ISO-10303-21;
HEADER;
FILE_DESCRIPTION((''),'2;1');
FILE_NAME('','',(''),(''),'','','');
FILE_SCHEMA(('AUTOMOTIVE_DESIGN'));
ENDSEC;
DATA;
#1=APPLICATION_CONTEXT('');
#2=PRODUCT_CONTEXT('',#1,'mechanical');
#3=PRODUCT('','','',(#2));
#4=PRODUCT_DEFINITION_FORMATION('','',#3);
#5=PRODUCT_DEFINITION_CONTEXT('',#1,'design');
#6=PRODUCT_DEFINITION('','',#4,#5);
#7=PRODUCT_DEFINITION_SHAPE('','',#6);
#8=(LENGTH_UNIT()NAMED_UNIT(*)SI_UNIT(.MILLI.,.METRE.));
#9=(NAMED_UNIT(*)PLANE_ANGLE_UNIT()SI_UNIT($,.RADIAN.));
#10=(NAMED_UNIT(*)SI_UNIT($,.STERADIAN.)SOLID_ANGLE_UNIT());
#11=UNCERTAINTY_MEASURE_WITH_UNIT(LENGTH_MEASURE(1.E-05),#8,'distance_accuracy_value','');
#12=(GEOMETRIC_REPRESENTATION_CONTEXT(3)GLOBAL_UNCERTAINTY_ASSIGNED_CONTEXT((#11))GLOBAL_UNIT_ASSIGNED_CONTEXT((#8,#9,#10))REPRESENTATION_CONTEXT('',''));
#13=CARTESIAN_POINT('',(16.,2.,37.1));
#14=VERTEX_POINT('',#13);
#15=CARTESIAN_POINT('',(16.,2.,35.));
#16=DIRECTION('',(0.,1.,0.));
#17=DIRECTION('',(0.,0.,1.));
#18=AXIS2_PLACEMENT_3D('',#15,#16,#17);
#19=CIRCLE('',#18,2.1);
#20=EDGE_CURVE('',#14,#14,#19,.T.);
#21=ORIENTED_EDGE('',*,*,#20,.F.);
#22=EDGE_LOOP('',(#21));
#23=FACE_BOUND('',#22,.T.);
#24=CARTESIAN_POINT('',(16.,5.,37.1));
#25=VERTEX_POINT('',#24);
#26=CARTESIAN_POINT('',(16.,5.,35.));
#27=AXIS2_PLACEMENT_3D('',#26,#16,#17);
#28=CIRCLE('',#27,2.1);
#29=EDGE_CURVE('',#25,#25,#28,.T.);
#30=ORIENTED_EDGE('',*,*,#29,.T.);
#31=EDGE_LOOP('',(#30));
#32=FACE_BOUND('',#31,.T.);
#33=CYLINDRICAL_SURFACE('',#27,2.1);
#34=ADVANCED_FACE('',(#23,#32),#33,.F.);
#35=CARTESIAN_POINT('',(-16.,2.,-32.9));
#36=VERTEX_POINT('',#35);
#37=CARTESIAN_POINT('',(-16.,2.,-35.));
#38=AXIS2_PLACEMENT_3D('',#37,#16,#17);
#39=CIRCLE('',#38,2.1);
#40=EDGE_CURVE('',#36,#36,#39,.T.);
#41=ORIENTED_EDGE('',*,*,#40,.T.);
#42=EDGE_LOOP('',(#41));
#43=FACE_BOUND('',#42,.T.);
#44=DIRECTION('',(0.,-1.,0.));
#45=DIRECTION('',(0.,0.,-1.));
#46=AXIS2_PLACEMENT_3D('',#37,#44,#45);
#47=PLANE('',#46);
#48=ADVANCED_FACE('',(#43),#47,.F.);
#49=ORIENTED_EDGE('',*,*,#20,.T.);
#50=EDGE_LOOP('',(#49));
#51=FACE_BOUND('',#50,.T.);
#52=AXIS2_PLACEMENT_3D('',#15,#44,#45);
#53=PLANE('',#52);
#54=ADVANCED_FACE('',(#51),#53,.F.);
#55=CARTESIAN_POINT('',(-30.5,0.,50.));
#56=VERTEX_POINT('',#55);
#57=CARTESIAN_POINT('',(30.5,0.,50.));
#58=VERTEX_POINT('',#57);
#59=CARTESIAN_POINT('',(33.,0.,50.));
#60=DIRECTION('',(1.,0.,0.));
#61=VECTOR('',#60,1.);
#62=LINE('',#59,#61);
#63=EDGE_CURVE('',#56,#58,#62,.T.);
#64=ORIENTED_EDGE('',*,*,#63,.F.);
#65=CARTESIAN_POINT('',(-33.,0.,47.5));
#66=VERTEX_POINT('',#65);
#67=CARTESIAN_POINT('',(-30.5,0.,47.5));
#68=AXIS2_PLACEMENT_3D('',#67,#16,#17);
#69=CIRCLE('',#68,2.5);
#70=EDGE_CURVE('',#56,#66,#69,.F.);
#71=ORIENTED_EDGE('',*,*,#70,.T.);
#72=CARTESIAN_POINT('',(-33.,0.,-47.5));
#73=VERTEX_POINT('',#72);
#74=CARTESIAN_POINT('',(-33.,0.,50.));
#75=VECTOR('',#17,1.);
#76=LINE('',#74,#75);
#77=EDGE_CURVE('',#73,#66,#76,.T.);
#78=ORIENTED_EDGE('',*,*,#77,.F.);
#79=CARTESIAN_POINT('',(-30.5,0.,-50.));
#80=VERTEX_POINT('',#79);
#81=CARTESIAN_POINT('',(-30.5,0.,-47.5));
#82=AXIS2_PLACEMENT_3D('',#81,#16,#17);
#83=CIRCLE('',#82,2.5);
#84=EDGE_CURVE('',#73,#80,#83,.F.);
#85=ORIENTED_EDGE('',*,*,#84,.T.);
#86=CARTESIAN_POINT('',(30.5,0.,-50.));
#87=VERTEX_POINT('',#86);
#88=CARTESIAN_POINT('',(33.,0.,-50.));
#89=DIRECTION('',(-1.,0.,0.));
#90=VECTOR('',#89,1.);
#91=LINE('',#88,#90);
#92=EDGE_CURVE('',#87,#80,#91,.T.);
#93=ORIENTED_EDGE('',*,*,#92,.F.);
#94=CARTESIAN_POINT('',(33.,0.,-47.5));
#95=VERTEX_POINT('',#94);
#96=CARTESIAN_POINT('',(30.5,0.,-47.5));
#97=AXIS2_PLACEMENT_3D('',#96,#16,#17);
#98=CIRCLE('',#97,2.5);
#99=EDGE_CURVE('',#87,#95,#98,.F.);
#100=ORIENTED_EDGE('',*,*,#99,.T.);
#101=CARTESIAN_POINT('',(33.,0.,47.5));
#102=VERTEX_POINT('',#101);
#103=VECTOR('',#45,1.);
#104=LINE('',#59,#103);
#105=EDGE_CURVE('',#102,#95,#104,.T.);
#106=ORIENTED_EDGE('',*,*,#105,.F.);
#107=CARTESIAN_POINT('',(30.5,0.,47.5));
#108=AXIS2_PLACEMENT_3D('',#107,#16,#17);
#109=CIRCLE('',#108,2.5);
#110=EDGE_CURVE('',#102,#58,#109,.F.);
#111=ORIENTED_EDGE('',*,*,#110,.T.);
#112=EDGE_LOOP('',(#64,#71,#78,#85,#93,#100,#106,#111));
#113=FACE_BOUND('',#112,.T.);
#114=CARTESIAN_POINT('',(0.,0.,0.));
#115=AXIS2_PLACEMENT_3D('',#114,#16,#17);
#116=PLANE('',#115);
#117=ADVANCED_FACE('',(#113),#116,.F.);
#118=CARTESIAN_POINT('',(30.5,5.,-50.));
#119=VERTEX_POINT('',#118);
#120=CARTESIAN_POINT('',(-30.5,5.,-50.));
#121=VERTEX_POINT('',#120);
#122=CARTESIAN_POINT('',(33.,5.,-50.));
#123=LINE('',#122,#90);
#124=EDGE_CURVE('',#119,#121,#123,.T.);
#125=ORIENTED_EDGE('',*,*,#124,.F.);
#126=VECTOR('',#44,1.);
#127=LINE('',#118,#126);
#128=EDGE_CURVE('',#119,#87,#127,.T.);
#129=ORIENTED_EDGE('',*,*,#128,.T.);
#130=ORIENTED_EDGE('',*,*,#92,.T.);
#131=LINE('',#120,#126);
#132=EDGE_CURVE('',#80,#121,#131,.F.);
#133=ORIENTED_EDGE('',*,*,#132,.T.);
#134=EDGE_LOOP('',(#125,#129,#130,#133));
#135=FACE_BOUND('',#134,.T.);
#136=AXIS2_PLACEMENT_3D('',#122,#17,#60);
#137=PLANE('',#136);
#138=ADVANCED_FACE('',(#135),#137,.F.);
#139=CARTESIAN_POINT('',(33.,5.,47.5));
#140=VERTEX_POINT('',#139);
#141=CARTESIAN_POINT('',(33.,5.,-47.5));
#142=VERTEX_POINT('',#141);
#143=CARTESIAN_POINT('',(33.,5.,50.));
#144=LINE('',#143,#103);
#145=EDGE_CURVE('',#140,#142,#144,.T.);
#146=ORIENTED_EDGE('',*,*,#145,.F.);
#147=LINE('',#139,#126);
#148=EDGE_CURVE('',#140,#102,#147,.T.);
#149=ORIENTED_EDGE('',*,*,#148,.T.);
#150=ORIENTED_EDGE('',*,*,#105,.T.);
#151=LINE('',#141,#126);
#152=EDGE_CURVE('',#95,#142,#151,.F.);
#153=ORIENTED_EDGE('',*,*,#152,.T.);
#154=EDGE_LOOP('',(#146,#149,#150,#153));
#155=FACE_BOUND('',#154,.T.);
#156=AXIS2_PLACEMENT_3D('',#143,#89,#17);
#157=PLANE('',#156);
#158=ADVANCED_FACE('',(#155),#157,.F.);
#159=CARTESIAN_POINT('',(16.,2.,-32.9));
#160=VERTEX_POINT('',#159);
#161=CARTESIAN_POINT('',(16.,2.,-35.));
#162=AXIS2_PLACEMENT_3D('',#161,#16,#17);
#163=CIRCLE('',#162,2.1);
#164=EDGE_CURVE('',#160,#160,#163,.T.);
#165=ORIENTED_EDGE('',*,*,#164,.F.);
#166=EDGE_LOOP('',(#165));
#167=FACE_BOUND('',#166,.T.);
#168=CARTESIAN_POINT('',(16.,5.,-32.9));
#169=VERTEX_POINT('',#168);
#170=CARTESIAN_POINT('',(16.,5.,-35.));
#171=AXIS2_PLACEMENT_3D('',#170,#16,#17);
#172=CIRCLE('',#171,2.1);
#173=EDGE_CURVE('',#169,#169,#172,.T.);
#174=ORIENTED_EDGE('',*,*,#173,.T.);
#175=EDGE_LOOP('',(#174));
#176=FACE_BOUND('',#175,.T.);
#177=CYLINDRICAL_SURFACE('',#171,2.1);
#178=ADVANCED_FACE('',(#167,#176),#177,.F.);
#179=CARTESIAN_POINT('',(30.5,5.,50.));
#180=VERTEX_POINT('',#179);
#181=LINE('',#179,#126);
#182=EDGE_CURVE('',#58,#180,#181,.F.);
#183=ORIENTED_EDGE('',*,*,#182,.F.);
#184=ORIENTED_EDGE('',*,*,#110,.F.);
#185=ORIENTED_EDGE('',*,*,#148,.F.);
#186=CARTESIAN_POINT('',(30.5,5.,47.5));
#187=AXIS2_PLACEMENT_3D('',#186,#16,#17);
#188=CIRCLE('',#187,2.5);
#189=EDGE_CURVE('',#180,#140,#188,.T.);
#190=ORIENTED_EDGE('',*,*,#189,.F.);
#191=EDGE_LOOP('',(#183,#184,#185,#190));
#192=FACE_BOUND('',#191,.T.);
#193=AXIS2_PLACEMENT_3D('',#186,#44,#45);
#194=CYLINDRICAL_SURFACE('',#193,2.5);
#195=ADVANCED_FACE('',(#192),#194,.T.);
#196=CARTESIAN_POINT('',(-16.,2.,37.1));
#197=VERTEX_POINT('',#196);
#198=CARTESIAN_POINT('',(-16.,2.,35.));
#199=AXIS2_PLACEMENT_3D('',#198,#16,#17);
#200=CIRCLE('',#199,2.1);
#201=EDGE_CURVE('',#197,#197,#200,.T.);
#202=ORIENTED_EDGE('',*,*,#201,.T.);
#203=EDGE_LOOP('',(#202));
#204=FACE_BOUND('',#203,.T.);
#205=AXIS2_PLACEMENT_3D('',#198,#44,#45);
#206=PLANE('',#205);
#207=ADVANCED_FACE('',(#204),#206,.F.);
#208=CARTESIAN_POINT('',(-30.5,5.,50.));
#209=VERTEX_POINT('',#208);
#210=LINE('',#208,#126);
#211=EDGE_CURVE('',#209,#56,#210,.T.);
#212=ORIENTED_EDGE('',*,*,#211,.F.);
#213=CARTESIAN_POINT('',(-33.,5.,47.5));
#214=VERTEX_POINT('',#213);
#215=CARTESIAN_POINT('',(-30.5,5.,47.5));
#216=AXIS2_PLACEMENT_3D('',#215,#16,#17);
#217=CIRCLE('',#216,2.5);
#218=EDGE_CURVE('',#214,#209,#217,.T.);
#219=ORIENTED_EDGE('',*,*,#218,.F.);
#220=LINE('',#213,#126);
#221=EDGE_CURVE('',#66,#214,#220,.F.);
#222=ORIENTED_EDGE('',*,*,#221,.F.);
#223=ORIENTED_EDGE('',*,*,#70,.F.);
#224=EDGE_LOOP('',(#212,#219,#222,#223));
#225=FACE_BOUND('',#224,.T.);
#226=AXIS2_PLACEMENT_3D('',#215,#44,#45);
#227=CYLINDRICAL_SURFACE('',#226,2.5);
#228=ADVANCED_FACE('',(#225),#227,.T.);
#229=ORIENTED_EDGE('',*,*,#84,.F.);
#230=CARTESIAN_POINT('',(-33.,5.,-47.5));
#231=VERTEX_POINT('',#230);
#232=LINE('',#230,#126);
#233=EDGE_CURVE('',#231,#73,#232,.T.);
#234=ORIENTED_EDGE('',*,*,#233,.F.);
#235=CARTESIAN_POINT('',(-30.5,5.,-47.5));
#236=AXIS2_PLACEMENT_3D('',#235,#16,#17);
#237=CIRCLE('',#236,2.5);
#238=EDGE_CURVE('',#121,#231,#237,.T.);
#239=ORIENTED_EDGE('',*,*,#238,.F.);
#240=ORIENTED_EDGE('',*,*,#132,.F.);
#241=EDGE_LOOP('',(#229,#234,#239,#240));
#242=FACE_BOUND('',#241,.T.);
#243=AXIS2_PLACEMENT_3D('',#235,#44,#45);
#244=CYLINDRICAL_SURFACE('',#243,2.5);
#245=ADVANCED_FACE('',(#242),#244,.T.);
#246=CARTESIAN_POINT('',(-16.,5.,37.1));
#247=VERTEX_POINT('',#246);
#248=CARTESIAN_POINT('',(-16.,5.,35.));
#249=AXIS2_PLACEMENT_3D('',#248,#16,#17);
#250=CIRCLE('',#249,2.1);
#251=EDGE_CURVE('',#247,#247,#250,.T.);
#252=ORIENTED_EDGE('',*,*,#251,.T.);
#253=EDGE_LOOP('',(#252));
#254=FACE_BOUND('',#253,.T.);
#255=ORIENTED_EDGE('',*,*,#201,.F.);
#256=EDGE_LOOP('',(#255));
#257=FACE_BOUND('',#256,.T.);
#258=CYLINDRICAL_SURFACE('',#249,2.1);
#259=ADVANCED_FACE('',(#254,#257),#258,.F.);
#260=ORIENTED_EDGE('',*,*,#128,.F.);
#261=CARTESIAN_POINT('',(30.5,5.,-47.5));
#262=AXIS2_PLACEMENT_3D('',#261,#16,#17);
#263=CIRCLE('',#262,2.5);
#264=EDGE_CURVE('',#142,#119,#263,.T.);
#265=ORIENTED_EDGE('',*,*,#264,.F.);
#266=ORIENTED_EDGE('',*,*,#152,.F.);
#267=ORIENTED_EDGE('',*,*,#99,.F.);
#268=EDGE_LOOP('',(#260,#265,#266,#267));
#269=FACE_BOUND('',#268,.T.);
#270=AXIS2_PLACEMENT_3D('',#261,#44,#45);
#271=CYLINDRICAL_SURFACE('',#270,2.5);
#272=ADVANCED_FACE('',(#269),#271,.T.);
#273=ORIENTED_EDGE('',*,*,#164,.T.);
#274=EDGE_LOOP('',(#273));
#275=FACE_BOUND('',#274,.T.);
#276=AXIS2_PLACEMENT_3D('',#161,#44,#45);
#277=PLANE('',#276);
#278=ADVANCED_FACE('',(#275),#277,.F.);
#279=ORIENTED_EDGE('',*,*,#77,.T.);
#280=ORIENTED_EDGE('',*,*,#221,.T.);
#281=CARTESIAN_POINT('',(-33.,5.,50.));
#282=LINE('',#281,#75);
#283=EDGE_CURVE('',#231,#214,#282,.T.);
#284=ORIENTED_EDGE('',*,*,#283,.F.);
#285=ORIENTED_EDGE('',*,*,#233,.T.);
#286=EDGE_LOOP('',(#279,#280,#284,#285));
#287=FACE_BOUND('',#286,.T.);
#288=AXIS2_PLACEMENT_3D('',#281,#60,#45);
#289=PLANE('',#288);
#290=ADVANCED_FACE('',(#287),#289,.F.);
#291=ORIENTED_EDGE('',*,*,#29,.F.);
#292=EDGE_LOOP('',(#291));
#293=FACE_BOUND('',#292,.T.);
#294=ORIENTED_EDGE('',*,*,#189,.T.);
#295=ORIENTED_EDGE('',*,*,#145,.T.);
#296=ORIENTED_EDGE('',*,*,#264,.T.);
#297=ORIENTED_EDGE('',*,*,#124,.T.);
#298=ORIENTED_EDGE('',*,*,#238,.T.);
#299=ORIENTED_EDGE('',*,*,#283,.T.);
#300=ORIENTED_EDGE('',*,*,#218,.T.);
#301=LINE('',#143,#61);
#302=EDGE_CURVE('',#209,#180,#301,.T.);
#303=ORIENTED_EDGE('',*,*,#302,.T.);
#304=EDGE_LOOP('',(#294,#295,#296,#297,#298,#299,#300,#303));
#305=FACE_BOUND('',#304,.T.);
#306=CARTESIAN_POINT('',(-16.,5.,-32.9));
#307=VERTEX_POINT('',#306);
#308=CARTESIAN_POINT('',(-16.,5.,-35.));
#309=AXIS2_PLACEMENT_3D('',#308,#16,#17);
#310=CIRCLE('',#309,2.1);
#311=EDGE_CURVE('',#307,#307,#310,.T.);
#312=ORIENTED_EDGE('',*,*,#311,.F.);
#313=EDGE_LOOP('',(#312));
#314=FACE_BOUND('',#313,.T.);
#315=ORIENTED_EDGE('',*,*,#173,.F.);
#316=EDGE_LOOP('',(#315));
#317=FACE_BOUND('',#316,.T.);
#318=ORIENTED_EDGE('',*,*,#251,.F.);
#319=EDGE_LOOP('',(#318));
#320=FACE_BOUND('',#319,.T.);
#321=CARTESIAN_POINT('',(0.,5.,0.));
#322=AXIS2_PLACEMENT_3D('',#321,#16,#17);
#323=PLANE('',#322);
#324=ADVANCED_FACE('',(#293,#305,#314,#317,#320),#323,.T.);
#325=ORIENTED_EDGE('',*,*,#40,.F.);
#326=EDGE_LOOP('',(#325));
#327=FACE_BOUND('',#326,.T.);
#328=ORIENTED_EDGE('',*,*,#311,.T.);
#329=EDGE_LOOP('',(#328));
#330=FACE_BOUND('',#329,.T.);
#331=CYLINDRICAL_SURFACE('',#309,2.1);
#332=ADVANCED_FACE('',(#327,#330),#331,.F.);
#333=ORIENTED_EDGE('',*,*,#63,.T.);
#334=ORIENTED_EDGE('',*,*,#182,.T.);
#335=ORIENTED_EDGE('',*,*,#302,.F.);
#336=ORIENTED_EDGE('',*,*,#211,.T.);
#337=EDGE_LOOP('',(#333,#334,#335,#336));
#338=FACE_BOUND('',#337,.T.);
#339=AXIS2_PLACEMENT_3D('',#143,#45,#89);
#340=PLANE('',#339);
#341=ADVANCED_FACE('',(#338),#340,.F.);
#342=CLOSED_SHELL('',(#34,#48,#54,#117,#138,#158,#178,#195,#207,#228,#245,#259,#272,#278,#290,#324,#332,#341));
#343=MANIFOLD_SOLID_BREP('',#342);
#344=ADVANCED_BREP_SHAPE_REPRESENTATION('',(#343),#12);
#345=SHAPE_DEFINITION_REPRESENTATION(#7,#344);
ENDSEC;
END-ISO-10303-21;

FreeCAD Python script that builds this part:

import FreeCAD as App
import Part
import Sketcher

V = App.Vector
Q = App.Units.Quantity


def edges_at(feature, points):
    """Names of the edges that pass closest to the given points."""
    edges = feature.Shape.Edges
    near = lambda p: min(range(len(edges)), key=lambda i: edges[i].distToShape(Part.Vertex(*p))[0])
    return sorted({f"Edge{near(p) + 1}" for p in points})

doc = App.newDocument("Part")
params = doc.addObject("Spreadsheet::Sheet", "Params")
for row, (alias, value) in enumerate([
    ("sketch1_width", "66 mm"),
    ("sketch1_height", "100 mm"),
    ("pad1_length", "5 mm"),
    ("sketch2_diameter", "4.2 mm"),
    ("hole_diameter", "4.2 mm"),
    ("hole_depth", "3 mm"),
    ("fillet_radius", "2.5 mm"),
], start=1):
    params.set(f"A{row}", alias)
    params.set(f"B{row}", "=" + value)
    params.setAlias(f"B{row}", alias)

body = doc.addObject("PartDesign::Body", "Body")

sketch1 = body.newObject("Sketcher::SketchObject", "Sketch")
sketch1.AttachmentSupport = (doc.getObject("XZ_Plane"), [""])
sketch1.MapMode = "FlatFace"
sketch1.addGeometry(Part.LineSegment(V(-33, -50, 0), V(-33, 50, 0)), False)
sketch1.addGeometry(Part.LineSegment(V(-33, 50, 0), V(33, 50, 0)), False)
sketch1.addGeometry(Part.LineSegment(V(33, 50, 0), V(33, -50, 0)), False)
sketch1.addGeometry(Part.LineSegment(V(33, -50, 0), V(-33, -50, 0)), False)
sketch1.addConstraint(Sketcher.Constraint("Coincident", 0, 2, 1, 1))
sketch1.addConstraint(Sketcher.Constraint("Coincident", 1, 2, 2, 1))
sketch1.addConstraint(Sketcher.Constraint("Coincident", 2, 2, 3, 1))
sketch1.addConstraint(Sketcher.Constraint("Coincident", 3, 2, 0, 1))
sketch1.addConstraint(Sketcher.Constraint("Vertical", 0))
sketch1.addConstraint(Sketcher.Constraint("Horizontal", 1))
sketch1.addConstraint(Sketcher.Constraint("Vertical", 2))
sketch1.addConstraint(Sketcher.Constraint("Horizontal", 3))
sketch1.addConstraint(Sketcher.Constraint("Symmetric", 0, 2, 2, 2, -1, 1))
sketch1.addConstraint(Sketcher.Constraint("DistanceX", 1, 1, 1, 2, Q("66 mm")))
sketch1.addConstraint(Sketcher.Constraint("DistanceY", 0, 1, 0, 2, Q("100 mm")))
sketch1.setExpression("Constraints[9]", "Params.sketch1_width")
sketch1.setExpression("Constraints[10]", "Params.sketch1_height")
pad1 = body.newObject("PartDesign::Pad", "Pad")
pad1.Profile = sketch1
pad1.setExpression("Length", "Params.pad1_length")
pad1.Reversed = True

sketch2 = body.newObject("Sketcher::SketchObject", "Sketch001")
sketch2.AttachmentSupport = (doc.getObject("XZ_Plane"), [""])
sketch2.MapMode = "FlatFace"
sketch2.AttachmentOffset = App.Placement(V(0, 0, -5), App.Rotation())
sketch2.addGeometry(Part.Circle(V(-16, -35, 0), V(0, 0, 1), 2.1), False)
sketch2.addGeometry(Part.Circle(V(16, -35, 0), V(0, 0, 1), 2.1), False)
sketch2.addGeometry(Part.Circle(V(16, 35, 0), V(0, 0, 1), 2.1), False)
sketch2.addGeometry(Part.Circle(V(-16, 35, 0), V(0, 0, 1), 2.1), False)
sketch2.addConstraint(Sketcher.Constraint("Equal", 0, 1))
sketch2.addConstraint(Sketcher.Constraint("Equal", 1, 2))
sketch2.addConstraint(Sketcher.Constraint("Equal", 2, 3))
sketch2.addConstraint(Sketcher.Constraint("Symmetric", 0, 3, 2, 3, -1, 1))
sketch2.addConstraint(Sketcher.Constraint("Symmetric", 1, 3, 3, 3, -1, 1))
sketch2.addConstraint(Sketcher.Constraint("Symmetric", 0, 3, 1, 3, -2))
sketch2.addConstraint(Sketcher.Constraint("Diameter", 0, Q("4.2 mm")))
sketch2.addConstraint(Sketcher.Constraint("DistanceX", 0, 3, -1, 1, Q("16 mm")))
sketch2.addConstraint(Sketcher.Constraint("DistanceY", 0, 3, -1, 1, Q("35 mm")))
sketch2.setExpression("Constraints[6]", "Params.sketch2_diameter")
doc.recompute()
hole = body.newObject("PartDesign::Hole", "Hole")
hole.Profile = sketch2
hole.ThreadType = "None"
hole.setExpression("Diameter", "Params.hole_diameter")
hole.DepthType = "Dimension"
hole.setExpression("Depth", "Params.hole_depth")
hole.DrillPoint = "Flat"
hole.Reversed = True
doc.recompute()

fillet = body.newObject("PartDesign::Fillet", "Fillet")
fillet.Base = (hole, edges_at(hole, [
    (-33, 2.5, -50),
    (33, 2.5, -50),
    (33, 2.5, 50),
    (-33, 2.5, 50),
]))
fillet.setExpression("Radius", "Params.fillet_radius")

doc.recompute()
